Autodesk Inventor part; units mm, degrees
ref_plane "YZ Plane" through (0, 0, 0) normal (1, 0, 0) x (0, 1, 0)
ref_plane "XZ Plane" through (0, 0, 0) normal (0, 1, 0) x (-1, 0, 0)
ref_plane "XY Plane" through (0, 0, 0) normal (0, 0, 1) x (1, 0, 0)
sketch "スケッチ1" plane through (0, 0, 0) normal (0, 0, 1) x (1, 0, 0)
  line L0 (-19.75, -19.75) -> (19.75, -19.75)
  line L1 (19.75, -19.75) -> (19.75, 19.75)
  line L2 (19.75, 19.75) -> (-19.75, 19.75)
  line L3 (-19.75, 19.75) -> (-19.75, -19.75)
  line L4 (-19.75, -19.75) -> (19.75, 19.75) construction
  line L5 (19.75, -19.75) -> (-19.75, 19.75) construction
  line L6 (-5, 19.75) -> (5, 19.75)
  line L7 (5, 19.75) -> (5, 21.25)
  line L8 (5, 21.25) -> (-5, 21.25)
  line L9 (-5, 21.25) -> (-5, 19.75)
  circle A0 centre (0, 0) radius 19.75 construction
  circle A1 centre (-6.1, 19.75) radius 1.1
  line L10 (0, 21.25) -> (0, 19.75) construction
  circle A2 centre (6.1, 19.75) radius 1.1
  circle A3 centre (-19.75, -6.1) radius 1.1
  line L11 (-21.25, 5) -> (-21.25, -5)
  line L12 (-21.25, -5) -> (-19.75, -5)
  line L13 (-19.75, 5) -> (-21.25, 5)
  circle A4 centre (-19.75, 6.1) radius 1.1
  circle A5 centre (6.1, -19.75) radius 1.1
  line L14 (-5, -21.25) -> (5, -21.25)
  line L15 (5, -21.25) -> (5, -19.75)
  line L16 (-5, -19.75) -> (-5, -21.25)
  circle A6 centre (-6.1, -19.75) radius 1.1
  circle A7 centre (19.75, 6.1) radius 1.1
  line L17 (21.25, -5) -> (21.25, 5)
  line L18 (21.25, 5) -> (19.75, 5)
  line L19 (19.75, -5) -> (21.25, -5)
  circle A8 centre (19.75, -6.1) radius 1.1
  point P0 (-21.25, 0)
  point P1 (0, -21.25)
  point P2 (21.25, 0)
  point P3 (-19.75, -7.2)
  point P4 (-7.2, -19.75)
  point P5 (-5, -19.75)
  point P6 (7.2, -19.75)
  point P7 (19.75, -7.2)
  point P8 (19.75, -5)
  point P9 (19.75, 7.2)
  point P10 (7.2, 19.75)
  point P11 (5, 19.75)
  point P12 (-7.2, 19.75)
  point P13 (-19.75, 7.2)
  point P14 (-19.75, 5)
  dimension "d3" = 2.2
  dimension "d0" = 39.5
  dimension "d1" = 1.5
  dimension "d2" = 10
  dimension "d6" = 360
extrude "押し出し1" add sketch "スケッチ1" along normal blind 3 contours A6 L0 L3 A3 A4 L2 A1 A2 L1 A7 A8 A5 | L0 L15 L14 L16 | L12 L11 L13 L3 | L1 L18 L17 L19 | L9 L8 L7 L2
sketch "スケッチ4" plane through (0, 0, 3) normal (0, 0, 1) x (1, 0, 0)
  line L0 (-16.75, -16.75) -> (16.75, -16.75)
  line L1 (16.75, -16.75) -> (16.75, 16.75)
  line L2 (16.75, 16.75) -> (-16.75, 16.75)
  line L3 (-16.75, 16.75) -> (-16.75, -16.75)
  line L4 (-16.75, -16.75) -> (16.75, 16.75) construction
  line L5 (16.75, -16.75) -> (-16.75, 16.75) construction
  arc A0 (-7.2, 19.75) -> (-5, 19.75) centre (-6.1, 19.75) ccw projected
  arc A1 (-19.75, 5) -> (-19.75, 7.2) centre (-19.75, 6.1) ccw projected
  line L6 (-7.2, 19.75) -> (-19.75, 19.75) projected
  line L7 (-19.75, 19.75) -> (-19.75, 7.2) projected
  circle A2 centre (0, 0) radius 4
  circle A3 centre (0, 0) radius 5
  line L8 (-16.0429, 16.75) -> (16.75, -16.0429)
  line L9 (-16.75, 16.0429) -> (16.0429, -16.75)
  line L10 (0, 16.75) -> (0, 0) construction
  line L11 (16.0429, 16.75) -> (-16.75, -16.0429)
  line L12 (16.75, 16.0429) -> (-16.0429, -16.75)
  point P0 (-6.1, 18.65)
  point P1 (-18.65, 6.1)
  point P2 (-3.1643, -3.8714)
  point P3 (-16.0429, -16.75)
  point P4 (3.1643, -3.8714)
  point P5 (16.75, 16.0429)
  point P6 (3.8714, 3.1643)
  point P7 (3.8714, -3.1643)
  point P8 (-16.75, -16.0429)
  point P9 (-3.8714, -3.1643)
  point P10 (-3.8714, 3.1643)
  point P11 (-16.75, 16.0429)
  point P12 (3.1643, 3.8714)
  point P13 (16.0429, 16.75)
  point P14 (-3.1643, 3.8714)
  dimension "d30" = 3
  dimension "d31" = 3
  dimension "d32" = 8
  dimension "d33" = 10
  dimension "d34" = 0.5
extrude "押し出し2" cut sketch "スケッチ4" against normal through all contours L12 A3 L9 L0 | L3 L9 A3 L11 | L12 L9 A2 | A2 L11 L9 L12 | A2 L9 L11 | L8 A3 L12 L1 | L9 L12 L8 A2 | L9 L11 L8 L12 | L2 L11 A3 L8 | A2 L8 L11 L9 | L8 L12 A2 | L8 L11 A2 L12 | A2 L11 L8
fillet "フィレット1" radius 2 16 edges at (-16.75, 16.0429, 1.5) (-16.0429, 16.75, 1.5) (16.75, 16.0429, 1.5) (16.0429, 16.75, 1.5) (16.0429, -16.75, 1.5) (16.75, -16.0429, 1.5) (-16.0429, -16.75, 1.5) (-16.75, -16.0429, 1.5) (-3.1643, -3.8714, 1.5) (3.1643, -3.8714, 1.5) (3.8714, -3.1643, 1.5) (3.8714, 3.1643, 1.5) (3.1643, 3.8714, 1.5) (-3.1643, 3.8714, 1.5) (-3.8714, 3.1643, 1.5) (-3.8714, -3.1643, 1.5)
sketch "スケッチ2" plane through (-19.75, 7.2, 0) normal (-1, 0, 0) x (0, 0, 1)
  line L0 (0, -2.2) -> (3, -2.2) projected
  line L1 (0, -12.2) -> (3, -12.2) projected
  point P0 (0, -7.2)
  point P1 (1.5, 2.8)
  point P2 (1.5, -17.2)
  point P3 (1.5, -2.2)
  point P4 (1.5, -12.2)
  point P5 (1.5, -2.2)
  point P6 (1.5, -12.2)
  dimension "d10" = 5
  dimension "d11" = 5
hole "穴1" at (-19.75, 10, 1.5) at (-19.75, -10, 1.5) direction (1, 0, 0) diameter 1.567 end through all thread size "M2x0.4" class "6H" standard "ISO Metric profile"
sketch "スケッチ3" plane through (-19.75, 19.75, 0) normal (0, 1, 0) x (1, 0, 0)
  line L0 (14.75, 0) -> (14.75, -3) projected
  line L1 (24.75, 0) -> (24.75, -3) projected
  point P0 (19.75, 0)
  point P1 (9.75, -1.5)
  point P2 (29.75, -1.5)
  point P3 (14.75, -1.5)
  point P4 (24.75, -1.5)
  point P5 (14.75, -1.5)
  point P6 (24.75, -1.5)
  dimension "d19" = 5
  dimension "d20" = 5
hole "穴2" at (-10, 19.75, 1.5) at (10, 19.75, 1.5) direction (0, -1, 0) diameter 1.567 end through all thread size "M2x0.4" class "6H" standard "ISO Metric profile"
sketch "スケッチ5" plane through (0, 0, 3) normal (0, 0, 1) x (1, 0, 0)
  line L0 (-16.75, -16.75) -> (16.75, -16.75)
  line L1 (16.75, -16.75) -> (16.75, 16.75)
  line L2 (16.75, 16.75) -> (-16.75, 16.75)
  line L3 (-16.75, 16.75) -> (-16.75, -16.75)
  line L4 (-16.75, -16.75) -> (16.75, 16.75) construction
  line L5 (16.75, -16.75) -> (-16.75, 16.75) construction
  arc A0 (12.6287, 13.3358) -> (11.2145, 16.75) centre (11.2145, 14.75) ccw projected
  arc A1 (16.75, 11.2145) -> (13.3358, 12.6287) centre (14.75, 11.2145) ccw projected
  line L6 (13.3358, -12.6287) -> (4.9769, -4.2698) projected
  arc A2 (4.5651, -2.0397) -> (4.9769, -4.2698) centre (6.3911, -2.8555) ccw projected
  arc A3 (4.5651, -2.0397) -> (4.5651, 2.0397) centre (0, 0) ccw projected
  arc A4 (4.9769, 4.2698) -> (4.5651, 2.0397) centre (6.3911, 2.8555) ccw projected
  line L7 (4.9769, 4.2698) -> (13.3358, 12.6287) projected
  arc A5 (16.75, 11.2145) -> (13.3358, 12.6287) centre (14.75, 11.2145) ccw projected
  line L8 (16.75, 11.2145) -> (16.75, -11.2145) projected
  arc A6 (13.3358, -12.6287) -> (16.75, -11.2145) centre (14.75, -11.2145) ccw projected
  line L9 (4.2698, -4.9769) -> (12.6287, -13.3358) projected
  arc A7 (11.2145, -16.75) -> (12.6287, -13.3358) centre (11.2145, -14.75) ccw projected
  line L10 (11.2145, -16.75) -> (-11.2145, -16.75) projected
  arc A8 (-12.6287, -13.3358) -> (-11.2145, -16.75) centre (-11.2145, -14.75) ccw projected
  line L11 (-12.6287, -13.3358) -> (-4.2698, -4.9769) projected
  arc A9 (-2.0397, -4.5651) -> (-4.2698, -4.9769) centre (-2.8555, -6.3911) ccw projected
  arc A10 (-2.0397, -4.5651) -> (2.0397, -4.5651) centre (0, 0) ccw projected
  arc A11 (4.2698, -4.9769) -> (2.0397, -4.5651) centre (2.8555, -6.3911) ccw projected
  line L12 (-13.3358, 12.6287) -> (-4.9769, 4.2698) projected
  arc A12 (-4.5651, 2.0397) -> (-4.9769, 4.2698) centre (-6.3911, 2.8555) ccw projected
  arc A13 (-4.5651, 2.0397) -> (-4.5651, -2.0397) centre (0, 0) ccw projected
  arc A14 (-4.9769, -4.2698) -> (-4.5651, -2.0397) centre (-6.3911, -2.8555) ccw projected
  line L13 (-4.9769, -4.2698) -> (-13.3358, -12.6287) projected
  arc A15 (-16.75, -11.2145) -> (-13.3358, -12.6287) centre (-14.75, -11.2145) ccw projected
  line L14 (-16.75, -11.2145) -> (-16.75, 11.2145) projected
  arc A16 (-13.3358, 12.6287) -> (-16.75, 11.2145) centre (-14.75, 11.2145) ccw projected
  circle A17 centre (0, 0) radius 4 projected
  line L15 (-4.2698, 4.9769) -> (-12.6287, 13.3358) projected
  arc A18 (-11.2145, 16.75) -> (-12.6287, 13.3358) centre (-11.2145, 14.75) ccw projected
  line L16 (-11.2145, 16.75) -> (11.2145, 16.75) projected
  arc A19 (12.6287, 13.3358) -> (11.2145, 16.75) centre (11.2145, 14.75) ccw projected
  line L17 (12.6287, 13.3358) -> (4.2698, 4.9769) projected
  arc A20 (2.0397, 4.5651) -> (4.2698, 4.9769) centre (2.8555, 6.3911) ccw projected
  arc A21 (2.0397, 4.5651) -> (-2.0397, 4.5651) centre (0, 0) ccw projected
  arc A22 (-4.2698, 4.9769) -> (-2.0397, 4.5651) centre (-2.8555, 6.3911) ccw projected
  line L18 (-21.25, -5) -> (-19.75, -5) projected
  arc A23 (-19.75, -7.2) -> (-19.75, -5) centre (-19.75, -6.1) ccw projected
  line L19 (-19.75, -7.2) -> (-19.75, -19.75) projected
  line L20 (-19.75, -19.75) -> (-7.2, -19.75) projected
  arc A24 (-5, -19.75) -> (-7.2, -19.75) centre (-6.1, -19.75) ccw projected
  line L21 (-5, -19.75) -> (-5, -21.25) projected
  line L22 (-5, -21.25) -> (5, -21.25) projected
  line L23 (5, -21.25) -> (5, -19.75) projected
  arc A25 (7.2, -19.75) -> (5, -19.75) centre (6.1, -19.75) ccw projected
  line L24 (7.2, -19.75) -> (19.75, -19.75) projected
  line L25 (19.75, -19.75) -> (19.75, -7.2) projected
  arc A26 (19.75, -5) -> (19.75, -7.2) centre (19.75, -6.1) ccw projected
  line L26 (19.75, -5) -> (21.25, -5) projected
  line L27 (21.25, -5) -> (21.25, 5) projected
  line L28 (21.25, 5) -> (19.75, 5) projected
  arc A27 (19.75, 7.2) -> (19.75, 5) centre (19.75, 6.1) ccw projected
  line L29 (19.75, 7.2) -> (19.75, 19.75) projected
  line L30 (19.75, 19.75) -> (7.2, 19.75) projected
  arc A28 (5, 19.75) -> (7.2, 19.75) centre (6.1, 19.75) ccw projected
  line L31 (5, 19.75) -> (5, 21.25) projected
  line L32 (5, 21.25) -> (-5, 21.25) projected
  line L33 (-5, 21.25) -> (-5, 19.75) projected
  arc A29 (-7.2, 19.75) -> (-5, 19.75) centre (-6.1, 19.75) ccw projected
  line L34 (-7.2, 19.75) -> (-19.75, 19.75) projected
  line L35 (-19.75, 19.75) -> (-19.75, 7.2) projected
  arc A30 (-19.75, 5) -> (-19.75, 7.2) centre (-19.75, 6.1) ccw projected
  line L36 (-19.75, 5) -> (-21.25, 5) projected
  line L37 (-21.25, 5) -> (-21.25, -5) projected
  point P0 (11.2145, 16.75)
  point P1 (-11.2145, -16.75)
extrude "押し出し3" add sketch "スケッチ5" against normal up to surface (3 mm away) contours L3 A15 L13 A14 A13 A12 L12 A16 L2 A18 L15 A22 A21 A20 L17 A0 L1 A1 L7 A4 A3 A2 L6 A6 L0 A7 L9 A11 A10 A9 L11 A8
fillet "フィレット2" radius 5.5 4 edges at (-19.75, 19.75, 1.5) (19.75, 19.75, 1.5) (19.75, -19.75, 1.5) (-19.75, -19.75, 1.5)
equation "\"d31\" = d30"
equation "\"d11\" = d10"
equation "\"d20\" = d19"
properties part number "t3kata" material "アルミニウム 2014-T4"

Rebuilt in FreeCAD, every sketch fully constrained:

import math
import FreeCAD as App
import Part
import Sketcher
from FreeCAD import Vector
Q = App.Units.Quantity


def edges_at(feature, points):
    """Names of the edges that pass closest to the given points."""
    edges = feature.Shape.Edges
    near = lambda p: min(range(len(edges)), key=lambda i: edges[i].distToShape(Part.Vertex(*p))[0])
    return sorted({f"Edge{near(p) + 1}" for p in points})

doc = App.newDocument("Part")
params = doc.addObject("Spreadsheet::Sheet", "Params")
for row, (alias, value) in enumerate([
    ("sketch1_radius", "1.1 mm"),
    ("sketch1_width", "10 mm"),
    ("sketch1_width2", "1.5 mm"),
    ("pad1_length", "3 mm"),
    ("sketch2_diameter", "8 mm"),
    ("sketch2_radius", "5 mm"),
    ("fillet_radius", "2 mm"),
    ("hole_diameter", "1.567 mm"),
    ("hole2_diameter", "1.567 mm"),
    ("sketch5_diameter", "8 mm"),
    ("sketch5_radius", "2 mm"),
    ("sketch5_radius2", "5 mm"),
    ("pad2_length", "3 mm"),
    ("fillet2_radius", "5.5 mm"),
], start=1):
    params.set(f"A{row}", alias)
    params.set(f"B{row}", "=" + value)
    params.setAlias(f"B{row}", alias)

body = doc.addObject("PartDesign::Body", "Body")

sketch1 = body.newObject("Sketcher::SketchObject", "Sketch")
sketch1.AttachmentSupport = (doc.getObject("XY_Plane"), [""])
sketch1.MapMode = "FlatFace"
sketch1.addGeometry([
    Part.ArcOfCircle(Part.Circle(Vector(-6.1, -19.8, 0), Vector(0, 0, 1), 1.1), math.radians(0), math.radians(180)),
    Part.LineSegment(Vector(-5, -19.8, 0), Vector(-5, -21.2, 0)),
    Part.LineSegment(Vector(-5, -21.2, 0), Vector(5, -21.2, 0)),
    Part.LineSegment(Vector(5, -21.2, 0), Vector(5, -19.8, 0)),
    Part.ArcOfCircle(Part.Circle(Vector(6.1, -19.8, 0), Vector(0, 0, 1), 1.1), math.radians(0), math.radians(180)),
    Part.LineSegment(Vector(7.2, -19.8, 0), Vector(19.8, -19.8, 0)),
    Part.LineSegment(Vector(19.8, -19.8, 0), Vector(19.8, -7.2, 0)),
    Part.ArcOfCircle(Part.Circle(Vector(19.8, -6.1, 0), Vector(0, 0, 1), 1.1), math.radians(90), math.radians(270)),
    Part.LineSegment(Vector(19.8, -5, 0), Vector(21.2, -5, 0)),
    Part.LineSegment(Vector(21.2, -5, 0), Vector(21.2, 5, 0)),
    Part.LineSegment(Vector(21.2, 5, 0), Vector(19.8, 5, 0)),
    Part.ArcOfCircle(Part.Circle(Vector(19.8, 6.1, 0), Vector(0, 0, 1), 1.1), math.radians(90), math.radians(270)),
    Part.LineSegment(Vector(19.8, 7.2, 0), Vector(19.8, 19.8, 0)),
    Part.LineSegment(Vector(19.8, 19.8, 0), Vector(7.2, 19.8, 0)),
    Part.ArcOfCircle(Part.Circle(Vector(6.1, 19.8, 0), Vector(0, 0, 1), 1.1), math.radians(180), math.radians(360)),
    Part.LineSegment(Vector(5, 19.8, 0), Vector(5, 21.2, 0)),
    Part.LineSegment(Vector(5, 21.2, 0), Vector(-5, 21.2, 0)),
    Part.LineSegment(Vector(-5, 21.2, 0), Vector(-5, 19.8, 0)),
    Part.ArcOfCircle(Part.Circle(Vector(-6.1, 19.8, 0), Vector(0, 0, 1), 1.1), math.radians(180), math.radians(360)),
    Part.LineSegment(Vector(-7.2, 19.8, 0), Vector(-19.8, 19.8, 0)),
    Part.LineSegment(Vector(-19.8, 19.8, 0), Vector(-19.8, 7.2, 0)),
    Part.ArcOfCircle(Part.Circle(Vector(-19.8, 6.1, 0), Vector(0, 0, 1), 1.1), math.radians(-90), math.radians(90)),
    Part.LineSegment(Vector(-19.8, 5, 0), Vector(-21.2, 5, 0)),
    Part.LineSegment(Vector(-21.2, 5, 0), Vector(-21.2, -5, 0)),
    Part.LineSegment(Vector(-21.2, -5, 0), Vector(-19.8, -5, 0)),
    Part.ArcOfCircle(Part.Circle(Vector(-19.8, -6.1, 0), Vector(0, 0, 1), 1.1), math.radians(-90), math.radians(90)),
    Part.LineSegment(Vector(-19.8, -7.2, 0), Vector(-19.8, -19.8, 0)),
    Part.LineSegment(Vector(-19.8, -19.8, 0), Vector(-7.2, -19.8, 0)),
], False)
sketch1.addConstraint([
    Sketcher.Constraint("Tangent", 0, 1, 1, 1),
    Sketcher.Constraint("Coincident", 1, 2, 2, 1),
    Sketcher.Constraint("Coincident", 2, 2, 3, 1),
    Sketcher.Constraint("Tangent", 3, 2, 4, 2),
    Sketcher.Constraint("Coincident", 4, 1, 5, 1),
    Sketcher.Constraint("Coincident", 5, 2, 6, 1),
    Sketcher.Constraint("Coincident", 6, 2, 7, 2),
    Sketcher.Constraint("Tangent", 7, 1, 8, 1),
    Sketcher.Constraint("Coincident", 8, 2, 9, 1),
    Sketcher.Constraint("Coincident", 9, 2, 10, 1),
    Sketcher.Constraint("Tangent", 10, 2, 11, 2),
    Sketcher.Constraint("Coincident", 11, 1, 12, 1),
    Sketcher.Constraint("Coincident", 12, 2, 13, 1),
    Sketcher.Constraint("Coincident", 13, 2, 14, 2),
    Sketcher.Constraint("Tangent", 14, 1, 15, 1),
    Sketcher.Constraint("Coincident", 15, 2, 16, 1),
    Sketcher.Constraint("Coincident", 16, 2, 17, 1),
    Sketcher.Constraint("Tangent", 17, 2, 18, 2),
    Sketcher.Constraint("Coincident", 18, 1, 19, 1),
    Sketcher.Constraint("Coincident", 19, 2, 20, 1),
    Sketcher.Constraint("Coincident", 20, 2, 21, 2),
    Sketcher.Constraint("Tangent", 21, 1, 22, 1),
    Sketcher.Constraint("Coincident", 22, 2, 23, 1),
    Sketcher.Constraint("Coincident", 23, 2, 24, 1),
    Sketcher.Constraint("Tangent", 24, 2, 25, 2),
    Sketcher.Constraint("Coincident", 25, 1, 26, 1),
    Sketcher.Constraint("Coincident", 26, 2, 27, 1),
    Sketcher.Constraint("Coincident", 27, 2, 0, 2),
    Sketcher.Constraint("Vertical", 1),
    Sketcher.Constraint("Horizontal", 2),
    Sketcher.Constraint("Vertical", 3),
    Sketcher.Constraint("Horizontal", 5),
    Sketcher.Constraint("Vertical", 6),
    Sketcher.Constraint("Horizontal", 8),
    Sketcher.Constraint("Vertical", 9),
    Sketcher.Constraint("Horizontal", 10),
    Sketcher.Constraint("Vertical", 12),
    Sketcher.Constraint("Horizontal", 13),
    Sketcher.Constraint("Vertical", 15),
    Sketcher.Constraint("Horizontal", 16),
    Sketcher.Constraint("Vertical", 17),
    Sketcher.Constraint("Horizontal", 19),
    Sketcher.Constraint("Vertical", 20),
    Sketcher.Constraint("Horizontal", 22),
    Sketcher.Constraint("Vertical", 23),
    Sketcher.Constraint("Horizontal", 24),
    Sketcher.Constraint("Vertical", 26),
    Sketcher.Constraint("Horizontal", 27),
    Sketcher.Constraint("Equal", 0, 4),
    Sketcher.Constraint("Equal", 4, 7),
    Sketcher.Constraint("Equal", 7, 11),
    Sketcher.Constraint("Equal", 11, 14),
    Sketcher.Constraint("Equal", 14, 18),
    Sketcher.Constraint("Equal", 18, 21),
    Sketcher.Constraint("Equal", 21, 25),
    Sketcher.Constraint("Symmetric", 0, 3, 14, 3, -1, 1),
    Sketcher.Constraint("Symmetric", 4, 3, 18, 3, -1, 1),
    Sketcher.Constraint("Symmetric", 7, 3, 21, 3, -1, 1),
    Sketcher.Constraint("Symmetric", 11, 3, 25, 3, -1, 1),
    Sketcher.Constraint("Symmetric", 5, 2, 19, 2, -1, 1),
    Sketcher.Constraint("Symmetric", 12, 2, 26, 2, -1, 1),
    Sketcher.Constraint("Symmetric", 0, 3, 4, 3, -2),
    Sketcher.Constraint("Symmetric", 11, 3, 21, 3, -2),
    Sketcher.Constraint("Symmetric", 12, 2, 19, 2, -2),
    Sketcher.Constraint("Horizontal", 3, 2, 4, 1),
    Sketcher.Constraint("Vertical", 11, 3, 5, 2),
    Sketcher.Constraint("Equal", 10, 22),
    Sketcher.Constraint("Equal", 24, 1),
    Sketcher.Constraint("Equal", 27, 6),
    Sketcher.Constraint("Equal", 16, 9),
    Sketcher.Constraint("Equal", 3, 15),
    Sketcher.Constraint("Radius", 0, Q("1.1 mm")),
    Sketcher.Constraint("DistanceX", 2, 1, 2, 2, Q("10 mm")),
    Sketcher.Constraint("DistanceX", 8, 1, 8, 2, Q("1.5 mm")),
    Sketcher.Constraint("DistanceY", 4, 3, 14, 3, Q("39.5 mm")),
])
sketch1.setExpression("Constraints[71]", "Params.sketch1_radius")
sketch1.setExpression("Constraints[72]", "Params.sketch1_width")
sketch1.setExpression("Constraints[73]", "Params.sketch1_width2")
pad1 = body.newObject("PartDesign::Pad", "Pad")
pad1.Profile = sketch1
pad1.setExpression("Length", "Params.pad1_length")

sketch2 = body.newObject("Sketcher::SketchObject", "Sketch001")
sketch2.AttachmentSupport = (doc.getObject("XY_Plane"), [""])
sketch2.MapMode = "FlatFace"
sketch2.AttachmentOffset = App.Placement(Vector(0, 0, 3), App.Rotation())
sketch2.addGeometry([
    Part.LineSegment(Vector(-3.2, -3.9, 0), Vector(-16, -16.8, 0)),
    Part.LineSegment(Vector(-16, -16.8, 0), Vector(16, -16.8, 0)),
    Part.LineSegment(Vector(16, -16.8, 0), Vector(3.2, -3.9, 0)),
    Part.ArcOfCircle(Part.Circle(Vector(0, 0, 0), Vector(0, 0, 1), 5), math.radians(-129), math.radians(-51)),
    Part.LineSegment(Vector(-16.8, 16, 0), Vector(-16.8, -16, 0)),
    Part.LineSegment(Vector(-16.8, -16, 0), Vector(-3.9, -3.2, 0)),
    Part.ArcOfCircle(Part.Circle(Vector(0, 0, 0), Vector(0, 0, 1), 5), math.radians(141), math.radians(219)),
    Part.LineSegment(Vector(-3.9, 3.2, 0), Vector(-16.8, 16, 0)),
    Part.Circle(Vector(0, 0, 0), Vector(0, 0, 1), 4),
    Part.LineSegment(Vector(3.9, -3.2, 0), Vector(16.8, -16, 0)),
    Part.LineSegment(Vector(16.8, -16, 0), Vector(16.8, 16, 0)),
    Part.LineSegment(Vector(16.8, 16, 0), Vector(3.9, 3.2, 0)),
    Part.ArcOfCircle(Part.Circle(Vector(0, 0, 0), Vector(0, 0, 1), 5), math.radians(-39), math.radians(39)),
    Part.LineSegment(Vector(16, 16.8, 0), Vector(-16, 16.8, 0)),
    Part.LineSegment(Vector(-16, 16.8, 0), Vector(-3.2, 3.9, 0)),
    Part.ArcOfCircle(Part.Circle(Vector(0, 0, 0), Vector(0, 0, 1), 5), math.radians(51), math.radians(129)),
    Part.LineSegment(Vector(3.2, 3.9, 0), Vector(16, 16.8, 0)),
], False)
sketch2.addConstraint([
    Sketcher.Constraint("Coincident", 0, 2, 1, 1),
    Sketcher.Constraint("Coincident", 1, 2, 2, 1),
    Sketcher.Constraint("Coincident", 2, 2, 3, 2),
    Sketcher.Constraint("Coincident", 3, 1, 0, 1),
    Sketcher.Constraint("Coincident", 4, 2, 5, 1),
    Sketcher.Constraint("Coincident", 5, 2, 6, 2),
    Sketcher.Constraint("Coincident", 6, 1, 7, 1),
    Sketcher.Constraint("Coincident", 7, 2, 4, 1),
    Sketcher.Constraint("Coincident", 9, 2, 10, 1),
    Sketcher.Constraint("Coincident", 10, 2, 11, 1),
    Sketcher.Constraint("Coincident", 11, 2, 12, 2),
    Sketcher.Constraint("Coincident", 12, 1, 9, 1),
    Sketcher.Constraint("Coincident", 13, 2, 14, 1),
    Sketcher.Constraint("Coincident", 14, 2, 15, 2),
    Sketcher.Constraint("Coincident", 15, 1, 16, 1),
    Sketcher.Constraint("Coincident", 16, 2, 13, 1),
    Sketcher.Constraint("Horizontal", 1),
    Sketcher.Constraint("Vertical", 4),
    Sketcher.Constraint("Vertical", 10),
    Sketcher.Constraint("Horizontal", 13),
    Sketcher.Constraint("Coincident", 3, 3, -1, 1),
    Sketcher.Constraint("Coincident", 6, 3, -1, 1),
    Sketcher.Constraint("Coincident", 8, 3, -1, 1),
    Sketcher.Constraint("Coincident", 12, 3, -1, 1),
    Sketcher.Constraint("Coincident", 15, 3, -1, 1),
    Sketcher.Constraint("Equal", 3, 6),
    Sketcher.Constraint("Equal", 6, 12),
    Sketcher.Constraint("Equal", 12, 15),
    Sketcher.Constraint("Symmetric", 7, 2, 9, 2, -1, 1),
    Sketcher.Constraint("Symmetric", 1, 2, 13, 2, -1, 1),
    Sketcher.Constraint("Perpendicular", 0, 2),
    Sketcher.Constraint("Perpendicular", 2, 5),
    Sketcher.Constraint("Perpendicular", 5, 7),
    Sketcher.Constraint("Parallel", 7, 9),
    Sketcher.Constraint("Perpendicular", 9, 11),
    Sketcher.Constraint("Perpendicular", 11, 14),
    Sketcher.Constraint("Perpendicular", 14, 16),
    Sketcher.Constraint("Horizontal", 2, 2, 3, 1),
    Sketcher.Constraint("Horizontal", 4, 2, 9, 2),
    Sketcher.Constraint("Horizontal", 7, 2, 10, 2),
    Sketcher.Constraint("Horizontal", 6, 1, 11, 2),
    Sketcher.Constraint("Horizontal", 14, 2, 15, 1),
    Sketcher.Constraint("Equal", 13, 4),
    Sketcher.Constraint("Equal", 2, 5),
    Sketcher.Constraint("Diameter", 8, Q("8 mm")),
    Sketcher.Constraint("Radius", 3, Q("5 mm")),
    Sketcher.Constraint("DistanceY", 0, 2, -1, 1, Q("16.75 mm")),
    Sketcher.Constraint("DistanceX", 1, 1, 1, 2, Q("32.0858 mm")),
])
sketch2.setExpression("Constraints[44]", "Params.sketch2_diameter")
sketch2.setExpression("Constraints[45]", "Params.sketch2_radius")
pocket1 = body.newObject("PartDesign::Pocket", "Pocket")
pocket1.Profile = sketch2
pocket1.Type = "ThroughAll"
doc.recompute()

fillet = body.newObject("PartDesign::Fillet", "Fillet")
fillet.Base = (pocket1, edges_at(pocket1, [
    (-16.75, 16.043, 1.5),
    (-16.043, 16.75, 1.5),
    (16.75, 16.043, 1.5),
    (16.043, 16.75, 1.5),
    (16.043, -16.75, 1.5),
    (16.75, -16.043, 1.5),
    (-16.043, -16.75, 1.5),
    (-16.75, -16.043, 1.5),
    (-3.164, -3.871, 1.5),
    (3.164, -3.871, 1.5),
    (3.871, -3.164, 1.5),
    (3.871, 3.164, 1.5),
    (3.164, 3.871, 1.5),
    (-3.164, 3.871, 1.5),
    (-3.871, 3.164, 1.5),
    (-3.871, -3.164, 1.5),
]))
fillet.setExpression("Radius", "Params.fillet_radius")

sketch3 = body.newObject("Sketcher::SketchObject", "Sketch002")
sketch3.AttachmentSupport = (doc.getObject("YZ_Plane"), [""])
sketch3.MapMode = "FlatFace"
sketch3.AttachmentOffset = App.Placement(Vector(0, 0, -19.75), App.Rotation())
sketch3.addGeometry([
    Part.Circle(Vector(10, 1.5, 0), Vector(0, 0, 1), 0.8),
    Part.Circle(Vector(-10, 1.5, 0), Vector(0, 0, 1), 0.8),
], False)
sketch3.addConstraint([
    Sketcher.Constraint("Equal", 0, 1),
    Sketcher.Constraint("Symmetric", 0, 3, 1, 3, -2),
    Sketcher.Constraint("Diameter", 0, Q("1.567 mm")),
    Sketcher.Constraint("DistanceX", -1, 1, 0, 3, Q("10 mm")),
    Sketcher.Constraint("DistanceY", -1, 1, 0, 3, Q("1.5 mm")),
])
doc.recompute()
hole = body.newObject("PartDesign::Hole", "Hole")
hole.Profile = sketch3
hole.ThreadType = "None"
hole.setExpression("Diameter", "Params.hole_diameter")
hole.DepthType = "ThroughAll"
hole.Reversed = True

sketch4 = body.newObject("Sketcher::SketchObject", "Sketch003")
sketch4.AttachmentSupport = (doc.getObject("XZ_Plane"), [""])
sketch4.MapMode = "FlatFace"
sketch4.AttachmentOffset = App.Placement(Vector(0, 0, -19.75), App.Rotation())
sketch4.addGeometry([
    Part.Circle(Vector(-10, 1.5, 0), Vector(0, 0, 1), 0.8),
    Part.Circle(Vector(10, 1.5, 0), Vector(0, 0, 1), 0.8),
], False)
sketch4.addConstraint([
    Sketcher.Constraint("Equal", 0, 1),
    Sketcher.Constraint("Symmetric", 0, 3, 1, 3, -2),
    Sketcher.Constraint("Diameter", 0, Q("1.567 mm")),
    Sketcher.Constraint("DistanceX", 0, 3, -1, 1, Q("10 mm")),
    Sketcher.Constraint("DistanceY", -1, 1, 0, 3, Q("1.5 mm")),
])
doc.recompute()
hole2 = body.newObject("PartDesign::Hole", "Hole001")
hole2.Profile = sketch4
hole2.ThreadType = "None"
hole2.setExpression("Diameter", "Params.hole2_diameter")
hole2.DepthType = "ThroughAll"
hole2.Reversed = True

sketch5 = body.newObject("Sketcher::SketchObject", "Sketch004")
sketch5.AttachmentSupport = (doc.getObject("XY_Plane"), [""])
sketch5.MapMode = "FlatFace"
sketch5.AttachmentOffset = App.Placement(Vector(0, 0, 3), App.Rotation())
sketch5.addGeometry([
    Part.LineSegment(Vector(-16.8, -11.2, 0), Vector(-16.8, -16.8, 0)),
    Part.LineSegment(Vector(-16.8, -16.8, 0), Vector(-11.2, -16.8, 0)),
    Part.ArcOfCircle(Part.Circle(Vector(-11.2, -14.8, 0), Vector(0, 0, 1), 2), math.radians(135), math.radians(270)),
    Part.LineSegment(Vector(-12.6, -13.3, 0), Vector(-4.3, -5, 0)),
    Part.ArcOfCircle(Part.Circle(Vector(-2.9, -6.4, 0), Vector(0, 0, 1), 2), math.radians(66), math.radians(135)),
    Part.ArcOfCircle(Part.Circle(Vector(0, 0, 0), Vector(0, 0, 1), 5), math.radians(-114), math.radians(-66)),
    Part.ArcOfCircle(Part.Circle(Vector(2.9, -6.4, 0), Vector(0, 0, 1), 2), math.radians(45), math.radians(114)),
    Part.LineSegment(Vector(4.3, -5, 0), Vector(12.6, -13.3, 0)),
    Part.ArcOfCircle(Part.Circle(Vector(11.2, -14.8, 0), Vector(0, 0, 1), 2), math.radians(-90), math.radians(45)),
    Part.LineSegment(Vector(11.2, -16.8, 0), Vector(16.8, -16.8, 0)),
    Part.LineSegment(Vector(16.8, -16.8, 0), Vector(16.8, -11.2, 0)),
    Part.ArcOfCircle(Part.Circle(Vector(14.8, -11.2, 0), Vector(0, 0, 1), 2), math.radians(-135), math.radians(0)),
    Part.LineSegment(Vector(13.3, -12.6, 0), Vector(5, -4.3, 0)),
    Part.ArcOfCircle(Part.Circle(Vector(6.4, -2.9, 0), Vector(0, 0, 1), 2), math.radians(156), math.radians(225)),
    Part.ArcOfCircle(Part.Circle(Vector(0, 0, 0), Vector(0, 0, 1), 5), math.radians(-24), math.radians(24)),
    Part.ArcOfCircle(Part.Circle(Vector(6.4, 2.9, 0), Vector(0, 0, 1), 2), math.radians(135), math.radians(204)),
    Part.LineSegment(Vector(5, 4.3, 0), Vector(13.3, 12.6, 0)),
    Part.ArcOfCircle(Part.Circle(Vector(14.8, 11.2, 0), Vector(0, 0, 1), 2), math.radians(0), math.radians(135)),
    Part.LineSegment(Vector(16.8, 11.2, 0), Vector(16.8, 16.8, 0)),
    Part.LineSegment(Vector(16.8, 16.8, 0), Vector(11.2, 16.8, 0)),
    Part.ArcOfCircle(Part.Circle(Vector(11.2, 14.8, 0), Vector(0, 0, 1), 2), math.radians(-45), math.radians(90)),
    Part.LineSegment(Vector(12.6, 13.3, 0), Vector(4.3, 5, 0)),
    Part.ArcOfCircle(Part.Circle(Vector(2.9, 6.4, 0), Vector(0, 0, 1), 2), math.radians(-114), math.radians(-45)),
    Part.ArcOfCircle(Part.Circle(Vector(0, 0, 0), Vector(0, 0, 1), 5), math.radians(66), math.radians(114)),
    Part.ArcOfCircle(Part.Circle(Vector(-2.9, 6.4, 0), Vector(0, 0, 1), 2), math.radians(-135), math.radians(-66)),
    Part.LineSegment(Vector(-4.3, 5, 0), Vector(-12.6, 13.3, 0)),
    Part.ArcOfCircle(Part.Circle(Vector(-11.2, 14.8, 0), Vector(0, 0, 1), 2), math.radians(90), math.radians(225)),
    Part.LineSegment(Vector(-11.2, 16.8, 0), Vector(-16.8, 16.8, 0)),
    Part.LineSegment(Vector(-16.8, 16.8, 0), Vector(-16.8, 11.2, 0)),
    Part.ArcOfCircle(Part.Circle(Vector(-14.8, 11.2, 0), Vector(0, 0, 1), 2), math.radians(45), math.radians(180)),
    Part.LineSegment(Vector(-13.3, 12.6, 0), Vector(-5, 4.3, 0)),
    Part.ArcOfCircle(Part.Circle(Vector(-6.4, 2.9, 0), Vector(0, 0, 1), 2), math.radians(-24), math.radians(45)),
    Part.ArcOfCircle(Part.Circle(Vector(0, 0, 0), Vector(0, 0, 1), 5), math.radians(156), math.radians(204)),
    Part.ArcOfCircle(Part.Circle(Vector(-6.4, -2.9, 0), Vector(0, 0, 1), 2), math.radians(-45), math.radians(24)),
    Part.LineSegment(Vector(-5, -4.3, 0), Vector(-13.3, -12.6, 0)),
    Part.ArcOfCircle(Part.Circle(Vector(-14.8, -11.2, 0), Vector(0, 0, 1), 2), math.radians(180), math.radians(315)),
    Part.Circle(Vector(0, 0, 0), Vector(0, 0, 1), 4),
], False)
sketch5.addConstraint([
    Sketcher.Constraint("Coincident", 0, 2, 1, 1),
    Sketcher.Constraint("Tangent", 1, 2, 2, 2),
    Sketcher.Constraint("Tangent", 2, 1, 3, 1),
    Sketcher.Constraint("Tangent", 3, 2, 4, 2),
    Sketcher.Constraint("Tangent", 4, 1, 5, 1),
    Sketcher.Constraint("Tangent", 5, 2, 6, 2),
    Sketcher.Constraint("Tangent", 6, 1, 7, 1),
    Sketcher.Constraint("Tangent", 7, 2, 8, 2),
    Sketcher.Constraint("Tangent", 8, 1, 9, 1),
    Sketcher.Constraint("Coincident", 9, 2, 10, 1),
    Sketcher.Constraint("Tangent", 10, 2, 11, 2),
    Sketcher.Constraint("Tangent", 11, 1, 12, 1),
    Sketcher.Constraint("Tangent", 12, 2, 13, 2),
    Sketcher.Constraint("Tangent", 13, 1, 14, 1),
    Sketcher.Constraint("Tangent", 14, 2, 15, 2),
    Sketcher.Constraint("Tangent", 15, 1, 16, 1),
    Sketcher.Constraint("Tangent", 16, 2, 17, 2),
    Sketcher.Constraint("Tangent", 17, 1, 18, 1),
    Sketcher.Constraint("Coincident", 18, 2, 19, 1),
    Sketcher.Constraint("Tangent", 19, 2, 20, 2),
    Sketcher.Constraint("Tangent", 20, 1, 21, 1),
    Sketcher.Constraint("Tangent", 21, 2, 22, 2),
    Sketcher.Constraint("Tangent", 22, 1, 23, 1),
    Sketcher.Constraint("Tangent", 23, 2, 24, 2),
    Sketcher.Constraint("Tangent", 24, 1, 25, 1),
    Sketcher.Constraint("Tangent", 25, 2, 26, 2),
    Sketcher.Constraint("Tangent", 26, 1, 27, 1),
    Sketcher.Constraint("Coincident", 27, 2, 28, 1),
    Sketcher.Constraint("Tangent", 28, 2, 29, 2),
    Sketcher.Constraint("Tangent", 29, 1, 30, 1),
    Sketcher.Constraint("Tangent", 30, 2, 31, 2),
    Sketcher.Constraint("Tangent", 31, 1, 32, 1),
    Sketcher.Constraint("Tangent", 32, 2, 33, 2),
    Sketcher.Constraint("Tangent", 33, 1, 34, 1),
    Sketcher.Constraint("Tangent", 34, 2, 35, 2),
    Sketcher.Constraint("Tangent", 35, 1, 0, 1),
    Sketcher.Constraint("Vertical", 0),
    Sketcher.Constraint("Horizontal", 1),
    Sketcher.Constraint("Horizontal", 9),
    Sketcher.Constraint("Vertical", 10),
    Sketcher.Constraint("Vertical", 18),
    Sketcher.Constraint("Horizontal", 19),
    Sketcher.Constraint("Horizontal", 27),
    Sketcher.Constraint("Vertical", 28),
    Sketcher.Constraint("Coincident", 5, 3, -1, 1),
    Sketcher.Constraint("Coincident", 14, 3, -1, 1),
    Sketcher.Constraint("Coincident", 23, 3, -1, 1),
    Sketcher.Constraint("Coincident", 32, 3, -1, 1),
    Sketcher.Constraint("Coincident", 36, 3, -1, 1),
    Sketcher.Constraint("Equal", 2, 4),
    Sketcher.Constraint("Equal", 4, 6),
    Sketcher.Constraint("Equal", 6, 8),
    Sketcher.Constraint("Equal", 8, 11),
    Sketcher.Constraint("Equal", 11, 13),
    Sketcher.Constraint("Equal", 5, 14),
    Sketcher.Constraint("Equal", 13, 15),
    Sketcher.Constraint("Equal", 15, 17),
    Sketcher.Constraint("Equal", 17, 20),
    Sketcher.Constraint("Equal", 20, 22),
    Sketcher.Constraint("Equal", 14, 23),
    Sketcher.Constraint("Equal", 22, 24),
    Sketcher.Constraint("Equal", 24, 26),
    Sketcher.Constraint("Equal", 26, 29),
    Sketcher.Constraint("Equal", 29, 31),
    Sketcher.Constraint("Equal", 23, 32),
    Sketcher.Constraint("Equal", 31, 33),
    Sketcher.Constraint("Equal", 33, 35),
    Sketcher.Constraint("Symmetric", 2, 3, 20, 3, -1, 1),
    Sketcher.Constraint("Symmetric", 8, 3, 26, 3, -1, 1),
    Sketcher.Constraint("Symmetric", 11, 3, 29, 3, -1, 1),
    Sketcher.Constraint("Symmetric", 17, 3, 35, 3, -1, 1),
    Sketcher.Constraint("Symmetric", 2, 3, 8, 3, -2),
    Sketcher.Constraint("Symmetric", 17, 3, 29, 3, -2),
    Sketcher.Constraint("Perpendicular", 3, 7),
    Sketcher.Constraint("Parallel", 7, 12),
    Sketcher.Constraint("Perpendicular", 12, 16),
    Sketcher.Constraint("Parallel", 16, 21),
    Sketcher.Constraint("Perpendicular", 21, 25),
    Sketcher.Constraint("Parallel", 25, 30),
    Sketcher.Constraint("Perpendicular", 30, 34),
    Sketcher.Constraint("Horizontal", 4, 3, 6, 3),
    Sketcher.Constraint("Equal", 27, 0),
    Sketcher.Constraint("Equal", 7, 12),
    Sketcher.Constraint("Diameter", 36, Q("8 mm")),
    Sketcher.Constraint("Radius", 2, Q("2 mm")),
    Sketcher.Constraint("Radius", 5, Q("5 mm")),
    Sketcher.Constraint("DistanceY", 2, 3, -1, 1, Q("14.75 mm")),
    Sketcher.Constraint("DistanceX", 2, 3, 6, 3, Q("14.07 mm")),
])
sketch5.setExpression("Constraints[83]", "Params.sketch5_diameter")
sketch5.setExpression("Constraints[84]", "Params.sketch5_radius")
sketch5.setExpression("Constraints[85]", "Params.sketch5_radius2")
pad2 = body.newObject("PartDesign::Pad", "Pad001")
pad2.Profile = sketch5
pad2.setExpression("Length", "Params.pad2_length")
pad2.Reversed = True
doc.recompute()

fillet2 = body.newObject("PartDesign::Fillet", "Fillet001")
fillet2.Base = (pad2, edges_at(pad2, [
    (-19.75, 19.75, 1.5),
    (19.75, 19.75, 1.5),
    (19.75, -19.75, 1.5),
    (-19.75, -19.75, 1.5),
]))
fillet2.setExpression("Radius", "Params.fillet2_radius")

doc.recompute()
